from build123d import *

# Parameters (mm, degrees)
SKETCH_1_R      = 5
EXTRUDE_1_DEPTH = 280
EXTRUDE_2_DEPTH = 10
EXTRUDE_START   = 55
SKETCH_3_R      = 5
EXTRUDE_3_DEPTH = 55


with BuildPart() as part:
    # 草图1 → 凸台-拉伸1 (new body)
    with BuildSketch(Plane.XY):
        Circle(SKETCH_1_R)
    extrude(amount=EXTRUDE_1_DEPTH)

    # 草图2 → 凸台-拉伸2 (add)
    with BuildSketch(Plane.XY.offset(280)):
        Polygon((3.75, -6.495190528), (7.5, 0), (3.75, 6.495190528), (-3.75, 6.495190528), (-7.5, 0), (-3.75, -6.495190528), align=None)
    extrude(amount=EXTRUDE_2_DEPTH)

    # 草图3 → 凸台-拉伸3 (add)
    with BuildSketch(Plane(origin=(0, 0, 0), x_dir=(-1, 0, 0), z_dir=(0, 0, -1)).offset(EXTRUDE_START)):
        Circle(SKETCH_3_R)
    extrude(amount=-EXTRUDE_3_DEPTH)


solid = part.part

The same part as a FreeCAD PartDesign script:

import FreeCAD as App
import Part
import Sketcher
from FreeCAD import Vector
Q = App.Units.Quantity


def add_polygon(sketch, points):
    """Adds a closed chain of lines whose ends are joined by coincident constraints."""
    first, n = sketch.GeometryCount, len(points)
    for a, b in zip(points, points[1:] + points[:1]):
        sketch.addGeometry(Part.LineSegment(App.Vector(*a, 0), App.Vector(*b, 0)), False)
    for i in range(n):
        sketch.addConstraint(Sketcher.Constraint("Coincident", first + i, 2, first + (i + 1) % n, 1))

doc = App.newDocument("Part")
body = doc.addObject("PartDesign::Body", "Body")

# Sketch on XY plane
sketch1 = body.newObject("Sketcher::SketchObject", "Sketch")
sketch1.AttachmentSupport = (doc.getObject("XY_Plane"), [""])
sketch1.MapMode = "FlatFace"
sketch1.addGeometry(Part.Circle(Vector(0, 0, 0), Vector(0, 0, 1), 5), False)
sketch1.addConstraint(Sketcher.Constraint("Coincident", 0, 3, -1, 1))
sketch1.addConstraint(Sketcher.Constraint("Diameter", 0, 10.0))
pad1 = body.newObject("PartDesign::Pad", "Pad")
pad1.Profile = sketch1
pad1.Length = 280

# Sketch on XY plane
sketch2 = body.newObject("Sketcher::SketchObject", "Sketch001")
sketch2.AttachmentSupport = (doc.getObject("XY_Plane"), [""])
sketch2.MapMode = "FlatFace"
sketch2.AttachmentOffset = App.Placement(Vector(0, 0, 280), App.Rotation())
add_polygon(sketch2, [(4, -6), (8, 0), (4, 6), (-4, 6), (-8, 0), (-4, -6)])  # lines 0-5
sketch2.addConstraint(Sketcher.Constraint("Horizontal", 2))
sketch2.addConstraint(Sketcher.Constraint("Horizontal", 5))
sketch2.addConstraint(Sketcher.Constraint("Symmetric", 0, 2, 3, 2, -1, 1))
sketch2.addConstraint(Sketcher.Constraint("Symmetric", 1, 2, 4, 2, -1, 1))
sketch2.addConstraint(Sketcher.Constraint("PointOnObject", 0, 2, -1))
sketch2.addConstraint(Sketcher.Constraint("Parallel", 0, 3))
sketch2.addConstraint(Sketcher.Constraint("Vertical", 2, 2, 4, 2))
sketch2.addConstraint(Sketcher.Constraint("Angle", 0, Q("60 deg")))
sketch2.addConstraint(Sketcher.Constraint("DistanceX", 2, 2, 2, 1, 7.5))
sketch2.addConstraint(Sketcher.Constraint("DistanceX", 3, 2, 0, 2, 15.0))
pad2 = body.newObject("PartDesign::Pad", "Pad001")
pad2.Profile = sketch2
pad2.Length = 10

# Sketch on XY plane
sketch3 = body.newObject("Sketcher::SketchObject", "Sketch002")
sketch3.AttachmentSupport = (doc.getObject("XY_Plane"), [""])
sketch3.MapMode = "FlatFace"
sketch3.AttachmentOffset = App.Placement(Vector(0, 0, -55), App.Rotation())
sketch3.addGeometry(Part.Circle(Vector(0, 0, 0), Vector(0, 0, 1), 5), False)
sketch3.addConstraint(Sketcher.Constraint("Coincident", 0, 3, -1, 1))
sketch3.addConstraint(Sketcher.Constraint("Diameter", 0, 10.0))
pad3 = body.newObject("PartDesign::Pad", "Pad002")
pad3.Profile = sketch3
pad3.Length = 55

doc.recompute()
